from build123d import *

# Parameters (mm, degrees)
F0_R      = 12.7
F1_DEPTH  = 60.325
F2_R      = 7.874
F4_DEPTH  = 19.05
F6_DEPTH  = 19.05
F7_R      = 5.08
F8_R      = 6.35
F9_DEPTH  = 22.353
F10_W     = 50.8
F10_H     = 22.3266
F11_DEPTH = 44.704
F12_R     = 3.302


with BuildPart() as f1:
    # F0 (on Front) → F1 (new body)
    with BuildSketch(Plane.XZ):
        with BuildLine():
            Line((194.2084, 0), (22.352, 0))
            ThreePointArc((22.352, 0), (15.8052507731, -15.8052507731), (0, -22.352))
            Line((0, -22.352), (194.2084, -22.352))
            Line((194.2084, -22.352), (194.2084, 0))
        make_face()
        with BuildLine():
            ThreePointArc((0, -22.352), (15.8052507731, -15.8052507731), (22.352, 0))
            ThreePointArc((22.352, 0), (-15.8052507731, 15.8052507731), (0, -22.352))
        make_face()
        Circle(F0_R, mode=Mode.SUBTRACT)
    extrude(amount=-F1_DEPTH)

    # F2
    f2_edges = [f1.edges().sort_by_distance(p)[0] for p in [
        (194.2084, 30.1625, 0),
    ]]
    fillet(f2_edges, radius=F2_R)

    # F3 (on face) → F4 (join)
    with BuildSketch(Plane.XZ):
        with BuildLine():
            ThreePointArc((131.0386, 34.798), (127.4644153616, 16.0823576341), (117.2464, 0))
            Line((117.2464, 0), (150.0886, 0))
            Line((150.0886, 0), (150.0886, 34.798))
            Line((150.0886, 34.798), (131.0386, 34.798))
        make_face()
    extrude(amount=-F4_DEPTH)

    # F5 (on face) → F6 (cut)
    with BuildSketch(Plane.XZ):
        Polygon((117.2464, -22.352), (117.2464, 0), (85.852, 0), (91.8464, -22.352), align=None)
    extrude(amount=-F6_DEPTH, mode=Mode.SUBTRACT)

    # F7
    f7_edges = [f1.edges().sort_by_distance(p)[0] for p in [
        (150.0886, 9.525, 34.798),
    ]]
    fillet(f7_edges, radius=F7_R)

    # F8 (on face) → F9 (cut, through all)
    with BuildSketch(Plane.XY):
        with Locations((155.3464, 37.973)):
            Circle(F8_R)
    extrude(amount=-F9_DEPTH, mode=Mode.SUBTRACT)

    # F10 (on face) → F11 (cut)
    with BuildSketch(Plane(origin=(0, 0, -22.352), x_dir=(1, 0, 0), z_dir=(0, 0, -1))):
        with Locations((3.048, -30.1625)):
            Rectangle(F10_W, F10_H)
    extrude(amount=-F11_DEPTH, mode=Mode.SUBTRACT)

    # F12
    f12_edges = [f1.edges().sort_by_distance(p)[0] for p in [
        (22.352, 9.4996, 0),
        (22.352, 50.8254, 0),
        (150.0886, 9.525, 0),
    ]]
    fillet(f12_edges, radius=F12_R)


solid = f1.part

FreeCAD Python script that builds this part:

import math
import FreeCAD as App
import Part
import Sketcher
from FreeCAD import Vector
Q = App.Units.Quantity


def edges_at(feature, points):
    """Names of the edges that pass closest to the given points."""
    edges = feature.Shape.Edges
    near = lambda p: min(range(len(edges)), key=lambda i: edges[i].distToShape(Part.Vertex(*p))[0])
    return sorted({f"Edge{near(p) + 1}" for p in points})

doc = App.newDocument("Part")
body = doc.addObject("PartDesign::Body", "Body")

# Sketch on XZ plane
sketch1 = doc.addObject("Sketcher::SketchObject", "Sketch")
body.addObject(sketch1)
sketch1.AttachmentSupport = (doc.XZ_Plane, [""])
sketch1.MapMode = "FlatFace"
sketch1.addGeometry(Part.LineSegment(Vector(194, 0, 0), Vector(22, 0, 0)), False)
sketch1.addGeometry(Part.ArcOfCircle(Part.Circle(Vector(0, 0, 0), Vector(0, 0, 1), 22), math.radians(0), math.radians(270)), False)
sketch1.addGeometry(Part.LineSegment(Vector(0, -22, 0), Vector(194, -22, 0)), False)
sketch1.addGeometry(Part.LineSegment(Vector(194, -22, 0), Vector(194, 0, 0)), False)
sketch1.addGeometry(Part.Circle(Vector(0, 0, 0), Vector(0, 0, 1), 13), False)
sketch1.addConstraint(Sketcher.Constraint("Coincident", 0, 2, 1, 1))
sketch1.addConstraint(Sketcher.Constraint("Tangent", 1, 2, 2, 1))
sketch1.addConstraint(Sketcher.Constraint("Coincident", 2, 2, 3, 1))
sketch1.addConstraint(Sketcher.Constraint("Coincident", 3, 2, 0, 1))
sketch1.addConstraint(Sketcher.Constraint("Horizontal", 0))
sketch1.addConstraint(Sketcher.Constraint("Horizontal", 2))
sketch1.addConstraint(Sketcher.Constraint("Vertical", 3))
sketch1.addConstraint(Sketcher.Constraint("Coincident", 1, 3, -1, 1))
sketch1.addConstraint(Sketcher.Constraint("Coincident", 4, 3, -1, 1))
sketch1.addConstraint(Sketcher.Constraint("PointOnObject", 0, 2, -1))
sketch1.addConstraint(Sketcher.Constraint("Diameter", 4, Q("1 in")))
sketch1.addConstraint(Sketcher.Constraint("Radius", 1, Q("0.88 in")))
sketch1.addConstraint(Sketcher.Constraint("DistanceX", 0, 2, 0, 1, Q("6.766 in")))
pad1 = doc.addObject("PartDesign::Pad", "Pad")
body.addObject(pad1)
pad1.Profile = sketch1
pad1.Length = Q("2.375 in")
pad1.Reversed = True
doc.recompute()

fillet = doc.addObject("PartDesign::Fillet", "Fillet")
body.addObject(fillet)
fillet.Base = (pad1, edges_at(pad1, [(194.208, 30.163, 0)]))
fillet.Radius = Q("0.31 in")

# Sketch on XZ plane
sketch2 = doc.addObject("Sketcher::SketchObject", "Sketch001")
body.addObject(sketch2)
sketch2.AttachmentSupport = (doc.XZ_Plane, [""])
sketch2.MapMode = "FlatFace"
sketch2.addGeometry(Part.ArcOfCircle(Part.Circle(Vector(80, 35, 0), Vector(0, 0, 1), 51), math.radians(-43), math.radians(0)), False)
sketch2.addGeometry(Part.LineSegment(Vector(117, 0, 0), Vector(150, 0, 0)), False)
sketch2.addGeometry(Part.LineSegment(Vector(150, 0, 0), Vector(150, 35, 0)), False)
sketch2.addGeometry(Part.LineSegment(Vector(150, 35, 0), Vector(131, 35, 0)), False)
sketch2.addConstraint(Sketcher.Constraint("Coincident", 0, 1, 1, 1))
sketch2.addConstraint(Sketcher.Constraint("Coincident", 1, 2, 2, 1))
sketch2.addConstraint(Sketcher.Constraint("Coincident", 2, 2, 3, 1))
sketch2.addConstraint(Sketcher.Constraint("Coincident", 3, 2, 0, 2))
sketch2.addConstraint(Sketcher.Constraint("Horizontal", 1))
sketch2.addConstraint(Sketcher.Constraint("Vertical", 2))
sketch2.addConstraint(Sketcher.Constraint("Horizontal", 3))
sketch2.addConstraint(Sketcher.Constraint("PointOnObject", 0, 1, -1))
sketch2.addConstraint(Sketcher.Constraint("Radius", 0, Q("2 in")))
sketch2.addConstraint(Sketcher.Constraint("DistanceX", 3, 2, 3, 1, Q("0.75 in")))
sketch2.addConstraint(Sketcher.Constraint("DistanceY", 2, 1, 2, 2, Q("1.37 in")))
sketch2.addConstraint(Sketcher.Constraint("DistanceX", 1, 1, 1, 2, Q("1.293 in")))
sketch2.addConstraint(Sketcher.Constraint("DistanceX", -1, 1, 0, 3, Q("3.159 in")))
pad2 = doc.addObject("PartDesign::Pad", "Pad001")
body.addObject(pad2)
pad2.Profile = sketch2
pad2.Length = Q("0.75 in")
pad2.Reversed = True

# Sketch on XZ plane
sketch3 = doc.addObject("Sketcher::SketchObject", "Sketch002")
body.addObject(sketch3)
sketch3.AttachmentSupport = (doc.XZ_Plane, [""])
sketch3.MapMode = "FlatFace"
sketch3.addGeometry(Part.LineSegment(Vector(117, -22, 0), Vector(117, 0, 0)), False)
sketch3.addGeometry(Part.LineSegment(Vector(117, 0, 0), Vector(86, 0, 0)), False)
sketch3.addGeometry(Part.LineSegment(Vector(86, 0, 0), Vector(92, -22, 0)), False)
sketch3.addGeometry(Part.LineSegment(Vector(92, -22, 0), Vector(117, -22, 0)), False)
sketch3.addConstraint(Sketcher.Constraint("Coincident", 0, 2, 1, 1))
sketch3.addConstraint(Sketcher.Constraint("Coincident", 1, 2, 2, 1))
sketch3.addConstraint(Sketcher.Constraint("Coincident", 2, 2, 3, 1))
sketch3.addConstraint(Sketcher.Constraint("Coincident", 3, 2, 0, 1))
sketch3.addConstraint(Sketcher.Constraint("Vertical", 0))
sketch3.addConstraint(Sketcher.Constraint("Horizontal", 1))
sketch3.addConstraint(Sketcher.Constraint("Horizontal", 3))
sketch3.addConstraint(Sketcher.Constraint("PointOnObject", 0, 2, -1))
sketch3.addConstraint(Sketcher.Constraint("DistanceX", 3, 1, 3, 2, Q("1 in")))
sketch3.addConstraint(Sketcher.Constraint("DistanceY", 0, 1, 0, 2, Q("0.88 in")))
sketch3.addConstraint(Sketcher.Constraint("DistanceX", 1, 2, 1, 1, Q("1.236 in")))
sketch3.addConstraint(Sketcher.Constraint("DistanceX", -1, 1, 1, 2, Q("3.38 in")))
pocket1 = doc.addObject("PartDesign::Pocket", "Pocket")
body.addObject(pocket1)
pocket1.Profile = sketch3
pocket1.Length = Q("0.75 in")
doc.recompute()

fillet2 = doc.addObject("PartDesign::Fillet", "Fillet001")
body.addObject(fillet2)
fillet2.Base = (pocket1, edges_at(pocket1, [(150.089, 9.525, 34.798)]))
fillet2.Radius = Q("0.2 in")

# Sketch on XY plane
sketch4 = doc.addObject("Sketcher::SketchObject", "Sketch003")
body.addObject(sketch4)
sketch4.AttachmentSupport = (doc.XY_Plane, [""])
sketch4.MapMode = "FlatFace"
sketch4.addGeometry(Part.Circle(Vector(155, 38, 0), Vector(0, 0, 1), 6), False)
sketch4.addConstraint(Sketcher.Constraint("Diameter", 0, Q("0.5 in")))
sketch4.addConstraint(Sketcher.Constraint("DistanceX", -1, 1, 0, 3, Q("6.116 in")))
sketch4.addConstraint(Sketcher.Constraint("DistanceY", -1, 1, 0, 3, Q("1.495 in")))
pocket2 = doc.addObject("PartDesign::Pocket", "Pocket001")
body.addObject(pocket2)
pocket2.Profile = sketch4
pocket2.Type = "ThroughAll"

# Sketch on XY plane
sketch5 = doc.addObject("Sketcher::SketchObject", "Sketch004")
body.addObject(sketch5)
sketch5.AttachmentSupport = (doc.XY_Plane, [""])
sketch5.MapMode = "FlatFace"
sketch5.AttachmentOffset = App.Placement(Vector(0, 0, -0.88 * 25.4), App.Rotation())
sketch5.addGeometry(Part.LineSegment(Vector(-22, 19, 0), Vector(-22, 41, 0)), False)
sketch5.addGeometry(Part.LineSegment(Vector(-22, 41, 0), Vector(28, 41, 0)), False)
sketch5.addGeometry(Part.LineSegment(Vector(28, 41, 0), Vector(28, 19, 0)), False)
sketch5.addGeometry(Part.LineSegment(Vector(28, 19, 0), Vector(-22, 19, 0)), False)
sketch5.addConstraint(Sketcher.Constraint("Coincident", 0, 2, 1, 1))
sketch5.addConstraint(Sketcher.Constraint("Coincident", 1, 2, 2, 1))
sketch5.addConstraint(Sketcher.Constraint("Coincident", 2, 2, 3, 1))
sketch5.addConstraint(Sketcher.Constraint("Coincident", 3, 2, 0, 1))
sketch5.addConstraint(Sketcher.Constraint("Vertical", 0))
sketch5.addConstraint(Sketcher.Constraint("Horizontal", 1))
sketch5.addConstraint(Sketcher.Constraint("Vertical", 2))
sketch5.addConstraint(Sketcher.Constraint("Horizontal", 3))
sketch5.addConstraint(Sketcher.Constraint("DistanceX", 1, 1, 1, 2, Q("2 in")))
sketch5.addConstraint(Sketcher.Constraint("DistanceY", 0, 1, 0, 2, Q("0.879 in")))
sketch5.addConstraint(Sketcher.Constraint("DistanceX", 0, 2, -1, 1, Q("0.88 in")))
sketch5.addConstraint(Sketcher.Constraint("DistanceY", -1, 1, 0, 2, Q("1.627 in")))
pocket3 = doc.addObject("PartDesign::Pocket", "Pocket002")
body.addObject(pocket3)
pocket3.Profile = sketch5
pocket3.Length = Q("1.76 in")
pocket3.Reversed = True
doc.recompute()

fillet3 = doc.addObject("PartDesign::Fillet", "Fillet002")
body.addObject(fillet3)
fillet3.Base = (pocket3, edges_at(pocket3, [(22.352, 9.5, 0), (22.352, 50.825, 0), (150.089, 9.525, 0)]))
fillet3.Radius = Q("0.13 in")

doc.recompute()
